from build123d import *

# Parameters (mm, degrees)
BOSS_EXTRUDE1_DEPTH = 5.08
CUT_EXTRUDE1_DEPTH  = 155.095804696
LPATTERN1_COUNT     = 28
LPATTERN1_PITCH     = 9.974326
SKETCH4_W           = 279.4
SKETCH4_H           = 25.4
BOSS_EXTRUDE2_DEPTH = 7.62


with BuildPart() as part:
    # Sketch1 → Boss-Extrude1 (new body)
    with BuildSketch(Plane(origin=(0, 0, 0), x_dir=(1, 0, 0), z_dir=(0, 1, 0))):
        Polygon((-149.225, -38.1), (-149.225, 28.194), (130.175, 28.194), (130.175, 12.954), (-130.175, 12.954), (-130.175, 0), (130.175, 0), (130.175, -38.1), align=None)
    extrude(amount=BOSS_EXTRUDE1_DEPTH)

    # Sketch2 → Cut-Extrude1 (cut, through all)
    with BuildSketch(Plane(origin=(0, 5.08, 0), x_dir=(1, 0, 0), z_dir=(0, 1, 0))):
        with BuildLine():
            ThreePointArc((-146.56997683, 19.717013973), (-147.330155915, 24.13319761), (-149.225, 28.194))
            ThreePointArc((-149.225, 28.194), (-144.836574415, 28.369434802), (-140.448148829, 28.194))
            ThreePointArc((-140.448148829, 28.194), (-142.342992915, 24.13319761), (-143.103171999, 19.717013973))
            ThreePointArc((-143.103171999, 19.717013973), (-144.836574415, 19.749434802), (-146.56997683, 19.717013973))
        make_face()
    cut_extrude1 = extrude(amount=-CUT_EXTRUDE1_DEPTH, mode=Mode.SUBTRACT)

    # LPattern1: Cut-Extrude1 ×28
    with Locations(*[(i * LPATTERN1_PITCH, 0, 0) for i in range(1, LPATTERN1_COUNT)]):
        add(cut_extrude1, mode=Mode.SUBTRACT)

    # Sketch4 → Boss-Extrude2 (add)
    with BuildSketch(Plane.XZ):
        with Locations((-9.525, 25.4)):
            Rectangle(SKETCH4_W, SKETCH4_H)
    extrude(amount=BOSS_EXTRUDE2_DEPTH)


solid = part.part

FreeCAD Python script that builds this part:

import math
import FreeCAD as App
import Part
import Sketcher

V = App.Vector
Q = App.Units.Quantity

doc = App.newDocument("Part")
body = doc.addObject("PartDesign::Body", "Body")

# Sketch on XZ plane
sketch1 = body.newObject("Sketcher::SketchObject", "Sketch")
sketch1.AttachmentSupport = (doc.getObject("XZ_Plane"), [""])
sketch1.MapMode = "FlatFace"
sketch1.addGeometry([
    Part.LineSegment(V(-149.225, -28.194, 0), V(-149.225, 38.1, 0)),  # 0
    Part.LineSegment(V(-149.225, 38.1, 0), V(130.175, 38.1, 0)),  # 1
    Part.LineSegment(V(130.175, 38.1, 0), V(130.175, 0, 0)),  # 2
    Part.LineSegment(V(130.175, 0, 0), V(-130.175, 0, 0)),  # 3
    Part.LineSegment(V(-130.175, 0, 0), V(-130.175, -12.954, 0)),  # 4
    Part.LineSegment(V(-130.175, -12.954, 0), V(130.175, -12.954, 0)),  # 5
    Part.LineSegment(V(130.175, -12.954, 0), V(130.175, -28.194, 0)),  # 6
    Part.LineSegment(V(130.175, -28.194, 0), V(-149.225, -28.194, 0)),  # 7
], False)
sketch1.addConstraint([
    Sketcher.Constraint("Coincident", 0, 2, 1, 1),
    Sketcher.Constraint("Coincident", 1, 2, 2, 1),
    Sketcher.Constraint("Coincident", 2, 2, 3, 1),
    Sketcher.Constraint("Coincident", 3, 2, 4, 1),
    Sketcher.Constraint("Coincident", 4, 2, 5, 1),
    Sketcher.Constraint("Coincident", 5, 2, 6, 1),
    Sketcher.Constraint("Coincident", 6, 2, 7, 1),
    Sketcher.Constraint("Coincident", 7, 2, 0, 1),
    Sketcher.Constraint("Vertical", 0),
    Sketcher.Constraint("Horizontal", 1),
    Sketcher.Constraint("Vertical", 2),
    Sketcher.Constraint("Horizontal", 3),
    Sketcher.Constraint("Vertical", 4),
    Sketcher.Constraint("Horizontal", 5),
    Sketcher.Constraint("Vertical", 6),
    Sketcher.Constraint("Horizontal", 7),
    Sketcher.Constraint("Symmetric", 2, 2, 3, 2, -1, 1),
    Sketcher.Constraint("Vertical", 2, 2, 5, 2),
    Sketcher.Constraint("DistanceX", 1, 1, 1, 2, Q("11 in")),
    Sketcher.Constraint("DistanceY", 2, 2, 2, 1, Q("1.5 in")),
    Sketcher.Constraint("DistanceY", 6, 2, 6, 1, Q("0.6 in")),
    Sketcher.Constraint("DistanceX", 3, 2, 3, 1, Q("10.25 in")),
    Sketcher.Constraint("DistanceY", 0, 1, 0, 2, Q("2.61 in")),
])
pad1 = body.newObject("PartDesign::Pad", "Pad")
pad1.Profile = sketch1
pad1.Length = Q("0.2 in")
pad1.Reversed = True

# Sketch on XZ plane
sketch2 = body.newObject("Sketcher::SketchObject", "Sketch001")
sketch2.AttachmentSupport = (doc.getObject("XZ_Plane"), [""])
sketch2.MapMode = "FlatFace"
sketch2.AttachmentOffset = App.Placement(V(0, 0, -0.2 * 25.4), App.Rotation())
sketch2.addGeometry([
    Part.ArcOfCircle(Part.Circle(V(-163.446533, -19.085489, 0), V(0, 0, 1), 16.888368), math.radians(-32.638473), math.radians(-2.143022)),
    Part.ArcOfCircle(Part.Circle(V(-144.836574, 26.605565, 0), V(0, 0, 1), 46.355), math.radians(-92.143022), math.radians(-87.856978)),
    Part.ArcOfCircle(Part.Circle(V(-126.226616, -19.085489, 0), V(0, 0, 1), 16.888368), math.radians(-177.856978), math.radians(-147.361527)),
    Part.ArcOfCircle(Part.Circle(V(-144.836574, 26.605565, 0), V(0, 0, 1), 54.975), math.radians(-94.578555), math.radians(-85.421445)),
], False)
sketch2.addConstraint([
    Sketcher.Constraint("Coincident", 0, 2, 1, 1),
    Sketcher.Constraint("Coincident", 1, 2, 2, 1),
    Sketcher.Constraint("Coincident", 2, 2, 3, 2),
    Sketcher.Constraint("Coincident", 3, 1, 0, 1),
    Sketcher.Constraint("Coincident", 3, 3, 1, 3),
    Sketcher.Constraint("Equal", 0, 2),
    Sketcher.Constraint("Horizontal", 0, 3, 2, 3),
    Sketcher.Constraint("Horizontal", 0, 2, 1, 2),
    Sketcher.Constraint("Radius", 1, Q("1.825 in")),
    Sketcher.Constraint("DistanceY", 2, 2, -1, 1, Q("1.11 in")),
    Sketcher.Constraint("Radius", 3, 54.975),
    Sketcher.Constraint("DistanceX", 3, 1, -1, 1, Q("5.875 in")),
    Sketcher.Constraint("Radius", 0, 16.888368),
    Sketcher.Constraint("DistanceY", 0, 3, -1, 1, 19.085489),
    Sketcher.Constraint("DistanceX", 1, 2, -1, 1, 143.103172),
])
pocket1 = body.newObject("PartDesign::Pocket", "Pocket")
pocket1.Profile = sketch2
pocket1.Type = "ThroughAll"
pocket1.Reversed = True
doc.recompute()

linearpattern = body.newObject("PartDesign::LinearPattern", "LinearPattern")
linearpattern.Originals = [pocket1]
linearpattern.Direction = (doc.getObject("X_Axis"), [""])
linearpattern.Mode = "offset"
linearpattern.Offset = 9.974326
linearpattern.Occurrences = 28
body.Tip = linearpattern

# Sketch on XZ plane
sketch3 = body.newObject("Sketcher::SketchObject", "Sketch002")
sketch3.AttachmentSupport = (doc.getObject("XZ_Plane"), [""])
sketch3.MapMode = "FlatFace"
sketch3.addGeometry([
    Part.LineSegment(V(-149.225, 38.1, 0), V(-149.225, 12.7, 0)),
    Part.LineSegment(V(-149.225, 12.7, 0), V(130.175, 12.7, 0)),
    Part.LineSegment(V(130.175, 12.7, 0), V(130.175, 38.1, 0)),
    Part.LineSegment(V(130.175, 38.1, 0), V(-149.225, 38.1, 0)),
], False)
sketch3.addConstraint([
    Sketcher.Constraint("Coincident", 0, 2, 1, 1),
    Sketcher.Constraint("Coincident", 1, 2, 2, 1),
    Sketcher.Constraint("Coincident", 2, 2, 3, 1),
    Sketcher.Constraint("Coincident", 3, 2, 0, 1),
    Sketcher.Constraint("Vertical", 0),
    Sketcher.Constraint("Horizontal", 1),
    Sketcher.Constraint("Vertical", 2),
    Sketcher.Constraint("Horizontal", 3),
    Sketcher.Constraint("DistanceX", 1, 1, 1, 2, Q("11 in")),
    Sketcher.Constraint("DistanceY", 0, 2, 0, 1, Q("1 in")),
    Sketcher.Constraint("DistanceY", -1, 1, 0, 2, Q("0.5 in")),
    Sketcher.Constraint("DistanceX", 0, 2, -1, 1, Q("5.875 in")),
])
pad2 = body.newObject("PartDesign::Pad", "Pad001")
pad2.Profile = sketch3
pad2.Length = Q("0.3 in")

doc.recompute()
